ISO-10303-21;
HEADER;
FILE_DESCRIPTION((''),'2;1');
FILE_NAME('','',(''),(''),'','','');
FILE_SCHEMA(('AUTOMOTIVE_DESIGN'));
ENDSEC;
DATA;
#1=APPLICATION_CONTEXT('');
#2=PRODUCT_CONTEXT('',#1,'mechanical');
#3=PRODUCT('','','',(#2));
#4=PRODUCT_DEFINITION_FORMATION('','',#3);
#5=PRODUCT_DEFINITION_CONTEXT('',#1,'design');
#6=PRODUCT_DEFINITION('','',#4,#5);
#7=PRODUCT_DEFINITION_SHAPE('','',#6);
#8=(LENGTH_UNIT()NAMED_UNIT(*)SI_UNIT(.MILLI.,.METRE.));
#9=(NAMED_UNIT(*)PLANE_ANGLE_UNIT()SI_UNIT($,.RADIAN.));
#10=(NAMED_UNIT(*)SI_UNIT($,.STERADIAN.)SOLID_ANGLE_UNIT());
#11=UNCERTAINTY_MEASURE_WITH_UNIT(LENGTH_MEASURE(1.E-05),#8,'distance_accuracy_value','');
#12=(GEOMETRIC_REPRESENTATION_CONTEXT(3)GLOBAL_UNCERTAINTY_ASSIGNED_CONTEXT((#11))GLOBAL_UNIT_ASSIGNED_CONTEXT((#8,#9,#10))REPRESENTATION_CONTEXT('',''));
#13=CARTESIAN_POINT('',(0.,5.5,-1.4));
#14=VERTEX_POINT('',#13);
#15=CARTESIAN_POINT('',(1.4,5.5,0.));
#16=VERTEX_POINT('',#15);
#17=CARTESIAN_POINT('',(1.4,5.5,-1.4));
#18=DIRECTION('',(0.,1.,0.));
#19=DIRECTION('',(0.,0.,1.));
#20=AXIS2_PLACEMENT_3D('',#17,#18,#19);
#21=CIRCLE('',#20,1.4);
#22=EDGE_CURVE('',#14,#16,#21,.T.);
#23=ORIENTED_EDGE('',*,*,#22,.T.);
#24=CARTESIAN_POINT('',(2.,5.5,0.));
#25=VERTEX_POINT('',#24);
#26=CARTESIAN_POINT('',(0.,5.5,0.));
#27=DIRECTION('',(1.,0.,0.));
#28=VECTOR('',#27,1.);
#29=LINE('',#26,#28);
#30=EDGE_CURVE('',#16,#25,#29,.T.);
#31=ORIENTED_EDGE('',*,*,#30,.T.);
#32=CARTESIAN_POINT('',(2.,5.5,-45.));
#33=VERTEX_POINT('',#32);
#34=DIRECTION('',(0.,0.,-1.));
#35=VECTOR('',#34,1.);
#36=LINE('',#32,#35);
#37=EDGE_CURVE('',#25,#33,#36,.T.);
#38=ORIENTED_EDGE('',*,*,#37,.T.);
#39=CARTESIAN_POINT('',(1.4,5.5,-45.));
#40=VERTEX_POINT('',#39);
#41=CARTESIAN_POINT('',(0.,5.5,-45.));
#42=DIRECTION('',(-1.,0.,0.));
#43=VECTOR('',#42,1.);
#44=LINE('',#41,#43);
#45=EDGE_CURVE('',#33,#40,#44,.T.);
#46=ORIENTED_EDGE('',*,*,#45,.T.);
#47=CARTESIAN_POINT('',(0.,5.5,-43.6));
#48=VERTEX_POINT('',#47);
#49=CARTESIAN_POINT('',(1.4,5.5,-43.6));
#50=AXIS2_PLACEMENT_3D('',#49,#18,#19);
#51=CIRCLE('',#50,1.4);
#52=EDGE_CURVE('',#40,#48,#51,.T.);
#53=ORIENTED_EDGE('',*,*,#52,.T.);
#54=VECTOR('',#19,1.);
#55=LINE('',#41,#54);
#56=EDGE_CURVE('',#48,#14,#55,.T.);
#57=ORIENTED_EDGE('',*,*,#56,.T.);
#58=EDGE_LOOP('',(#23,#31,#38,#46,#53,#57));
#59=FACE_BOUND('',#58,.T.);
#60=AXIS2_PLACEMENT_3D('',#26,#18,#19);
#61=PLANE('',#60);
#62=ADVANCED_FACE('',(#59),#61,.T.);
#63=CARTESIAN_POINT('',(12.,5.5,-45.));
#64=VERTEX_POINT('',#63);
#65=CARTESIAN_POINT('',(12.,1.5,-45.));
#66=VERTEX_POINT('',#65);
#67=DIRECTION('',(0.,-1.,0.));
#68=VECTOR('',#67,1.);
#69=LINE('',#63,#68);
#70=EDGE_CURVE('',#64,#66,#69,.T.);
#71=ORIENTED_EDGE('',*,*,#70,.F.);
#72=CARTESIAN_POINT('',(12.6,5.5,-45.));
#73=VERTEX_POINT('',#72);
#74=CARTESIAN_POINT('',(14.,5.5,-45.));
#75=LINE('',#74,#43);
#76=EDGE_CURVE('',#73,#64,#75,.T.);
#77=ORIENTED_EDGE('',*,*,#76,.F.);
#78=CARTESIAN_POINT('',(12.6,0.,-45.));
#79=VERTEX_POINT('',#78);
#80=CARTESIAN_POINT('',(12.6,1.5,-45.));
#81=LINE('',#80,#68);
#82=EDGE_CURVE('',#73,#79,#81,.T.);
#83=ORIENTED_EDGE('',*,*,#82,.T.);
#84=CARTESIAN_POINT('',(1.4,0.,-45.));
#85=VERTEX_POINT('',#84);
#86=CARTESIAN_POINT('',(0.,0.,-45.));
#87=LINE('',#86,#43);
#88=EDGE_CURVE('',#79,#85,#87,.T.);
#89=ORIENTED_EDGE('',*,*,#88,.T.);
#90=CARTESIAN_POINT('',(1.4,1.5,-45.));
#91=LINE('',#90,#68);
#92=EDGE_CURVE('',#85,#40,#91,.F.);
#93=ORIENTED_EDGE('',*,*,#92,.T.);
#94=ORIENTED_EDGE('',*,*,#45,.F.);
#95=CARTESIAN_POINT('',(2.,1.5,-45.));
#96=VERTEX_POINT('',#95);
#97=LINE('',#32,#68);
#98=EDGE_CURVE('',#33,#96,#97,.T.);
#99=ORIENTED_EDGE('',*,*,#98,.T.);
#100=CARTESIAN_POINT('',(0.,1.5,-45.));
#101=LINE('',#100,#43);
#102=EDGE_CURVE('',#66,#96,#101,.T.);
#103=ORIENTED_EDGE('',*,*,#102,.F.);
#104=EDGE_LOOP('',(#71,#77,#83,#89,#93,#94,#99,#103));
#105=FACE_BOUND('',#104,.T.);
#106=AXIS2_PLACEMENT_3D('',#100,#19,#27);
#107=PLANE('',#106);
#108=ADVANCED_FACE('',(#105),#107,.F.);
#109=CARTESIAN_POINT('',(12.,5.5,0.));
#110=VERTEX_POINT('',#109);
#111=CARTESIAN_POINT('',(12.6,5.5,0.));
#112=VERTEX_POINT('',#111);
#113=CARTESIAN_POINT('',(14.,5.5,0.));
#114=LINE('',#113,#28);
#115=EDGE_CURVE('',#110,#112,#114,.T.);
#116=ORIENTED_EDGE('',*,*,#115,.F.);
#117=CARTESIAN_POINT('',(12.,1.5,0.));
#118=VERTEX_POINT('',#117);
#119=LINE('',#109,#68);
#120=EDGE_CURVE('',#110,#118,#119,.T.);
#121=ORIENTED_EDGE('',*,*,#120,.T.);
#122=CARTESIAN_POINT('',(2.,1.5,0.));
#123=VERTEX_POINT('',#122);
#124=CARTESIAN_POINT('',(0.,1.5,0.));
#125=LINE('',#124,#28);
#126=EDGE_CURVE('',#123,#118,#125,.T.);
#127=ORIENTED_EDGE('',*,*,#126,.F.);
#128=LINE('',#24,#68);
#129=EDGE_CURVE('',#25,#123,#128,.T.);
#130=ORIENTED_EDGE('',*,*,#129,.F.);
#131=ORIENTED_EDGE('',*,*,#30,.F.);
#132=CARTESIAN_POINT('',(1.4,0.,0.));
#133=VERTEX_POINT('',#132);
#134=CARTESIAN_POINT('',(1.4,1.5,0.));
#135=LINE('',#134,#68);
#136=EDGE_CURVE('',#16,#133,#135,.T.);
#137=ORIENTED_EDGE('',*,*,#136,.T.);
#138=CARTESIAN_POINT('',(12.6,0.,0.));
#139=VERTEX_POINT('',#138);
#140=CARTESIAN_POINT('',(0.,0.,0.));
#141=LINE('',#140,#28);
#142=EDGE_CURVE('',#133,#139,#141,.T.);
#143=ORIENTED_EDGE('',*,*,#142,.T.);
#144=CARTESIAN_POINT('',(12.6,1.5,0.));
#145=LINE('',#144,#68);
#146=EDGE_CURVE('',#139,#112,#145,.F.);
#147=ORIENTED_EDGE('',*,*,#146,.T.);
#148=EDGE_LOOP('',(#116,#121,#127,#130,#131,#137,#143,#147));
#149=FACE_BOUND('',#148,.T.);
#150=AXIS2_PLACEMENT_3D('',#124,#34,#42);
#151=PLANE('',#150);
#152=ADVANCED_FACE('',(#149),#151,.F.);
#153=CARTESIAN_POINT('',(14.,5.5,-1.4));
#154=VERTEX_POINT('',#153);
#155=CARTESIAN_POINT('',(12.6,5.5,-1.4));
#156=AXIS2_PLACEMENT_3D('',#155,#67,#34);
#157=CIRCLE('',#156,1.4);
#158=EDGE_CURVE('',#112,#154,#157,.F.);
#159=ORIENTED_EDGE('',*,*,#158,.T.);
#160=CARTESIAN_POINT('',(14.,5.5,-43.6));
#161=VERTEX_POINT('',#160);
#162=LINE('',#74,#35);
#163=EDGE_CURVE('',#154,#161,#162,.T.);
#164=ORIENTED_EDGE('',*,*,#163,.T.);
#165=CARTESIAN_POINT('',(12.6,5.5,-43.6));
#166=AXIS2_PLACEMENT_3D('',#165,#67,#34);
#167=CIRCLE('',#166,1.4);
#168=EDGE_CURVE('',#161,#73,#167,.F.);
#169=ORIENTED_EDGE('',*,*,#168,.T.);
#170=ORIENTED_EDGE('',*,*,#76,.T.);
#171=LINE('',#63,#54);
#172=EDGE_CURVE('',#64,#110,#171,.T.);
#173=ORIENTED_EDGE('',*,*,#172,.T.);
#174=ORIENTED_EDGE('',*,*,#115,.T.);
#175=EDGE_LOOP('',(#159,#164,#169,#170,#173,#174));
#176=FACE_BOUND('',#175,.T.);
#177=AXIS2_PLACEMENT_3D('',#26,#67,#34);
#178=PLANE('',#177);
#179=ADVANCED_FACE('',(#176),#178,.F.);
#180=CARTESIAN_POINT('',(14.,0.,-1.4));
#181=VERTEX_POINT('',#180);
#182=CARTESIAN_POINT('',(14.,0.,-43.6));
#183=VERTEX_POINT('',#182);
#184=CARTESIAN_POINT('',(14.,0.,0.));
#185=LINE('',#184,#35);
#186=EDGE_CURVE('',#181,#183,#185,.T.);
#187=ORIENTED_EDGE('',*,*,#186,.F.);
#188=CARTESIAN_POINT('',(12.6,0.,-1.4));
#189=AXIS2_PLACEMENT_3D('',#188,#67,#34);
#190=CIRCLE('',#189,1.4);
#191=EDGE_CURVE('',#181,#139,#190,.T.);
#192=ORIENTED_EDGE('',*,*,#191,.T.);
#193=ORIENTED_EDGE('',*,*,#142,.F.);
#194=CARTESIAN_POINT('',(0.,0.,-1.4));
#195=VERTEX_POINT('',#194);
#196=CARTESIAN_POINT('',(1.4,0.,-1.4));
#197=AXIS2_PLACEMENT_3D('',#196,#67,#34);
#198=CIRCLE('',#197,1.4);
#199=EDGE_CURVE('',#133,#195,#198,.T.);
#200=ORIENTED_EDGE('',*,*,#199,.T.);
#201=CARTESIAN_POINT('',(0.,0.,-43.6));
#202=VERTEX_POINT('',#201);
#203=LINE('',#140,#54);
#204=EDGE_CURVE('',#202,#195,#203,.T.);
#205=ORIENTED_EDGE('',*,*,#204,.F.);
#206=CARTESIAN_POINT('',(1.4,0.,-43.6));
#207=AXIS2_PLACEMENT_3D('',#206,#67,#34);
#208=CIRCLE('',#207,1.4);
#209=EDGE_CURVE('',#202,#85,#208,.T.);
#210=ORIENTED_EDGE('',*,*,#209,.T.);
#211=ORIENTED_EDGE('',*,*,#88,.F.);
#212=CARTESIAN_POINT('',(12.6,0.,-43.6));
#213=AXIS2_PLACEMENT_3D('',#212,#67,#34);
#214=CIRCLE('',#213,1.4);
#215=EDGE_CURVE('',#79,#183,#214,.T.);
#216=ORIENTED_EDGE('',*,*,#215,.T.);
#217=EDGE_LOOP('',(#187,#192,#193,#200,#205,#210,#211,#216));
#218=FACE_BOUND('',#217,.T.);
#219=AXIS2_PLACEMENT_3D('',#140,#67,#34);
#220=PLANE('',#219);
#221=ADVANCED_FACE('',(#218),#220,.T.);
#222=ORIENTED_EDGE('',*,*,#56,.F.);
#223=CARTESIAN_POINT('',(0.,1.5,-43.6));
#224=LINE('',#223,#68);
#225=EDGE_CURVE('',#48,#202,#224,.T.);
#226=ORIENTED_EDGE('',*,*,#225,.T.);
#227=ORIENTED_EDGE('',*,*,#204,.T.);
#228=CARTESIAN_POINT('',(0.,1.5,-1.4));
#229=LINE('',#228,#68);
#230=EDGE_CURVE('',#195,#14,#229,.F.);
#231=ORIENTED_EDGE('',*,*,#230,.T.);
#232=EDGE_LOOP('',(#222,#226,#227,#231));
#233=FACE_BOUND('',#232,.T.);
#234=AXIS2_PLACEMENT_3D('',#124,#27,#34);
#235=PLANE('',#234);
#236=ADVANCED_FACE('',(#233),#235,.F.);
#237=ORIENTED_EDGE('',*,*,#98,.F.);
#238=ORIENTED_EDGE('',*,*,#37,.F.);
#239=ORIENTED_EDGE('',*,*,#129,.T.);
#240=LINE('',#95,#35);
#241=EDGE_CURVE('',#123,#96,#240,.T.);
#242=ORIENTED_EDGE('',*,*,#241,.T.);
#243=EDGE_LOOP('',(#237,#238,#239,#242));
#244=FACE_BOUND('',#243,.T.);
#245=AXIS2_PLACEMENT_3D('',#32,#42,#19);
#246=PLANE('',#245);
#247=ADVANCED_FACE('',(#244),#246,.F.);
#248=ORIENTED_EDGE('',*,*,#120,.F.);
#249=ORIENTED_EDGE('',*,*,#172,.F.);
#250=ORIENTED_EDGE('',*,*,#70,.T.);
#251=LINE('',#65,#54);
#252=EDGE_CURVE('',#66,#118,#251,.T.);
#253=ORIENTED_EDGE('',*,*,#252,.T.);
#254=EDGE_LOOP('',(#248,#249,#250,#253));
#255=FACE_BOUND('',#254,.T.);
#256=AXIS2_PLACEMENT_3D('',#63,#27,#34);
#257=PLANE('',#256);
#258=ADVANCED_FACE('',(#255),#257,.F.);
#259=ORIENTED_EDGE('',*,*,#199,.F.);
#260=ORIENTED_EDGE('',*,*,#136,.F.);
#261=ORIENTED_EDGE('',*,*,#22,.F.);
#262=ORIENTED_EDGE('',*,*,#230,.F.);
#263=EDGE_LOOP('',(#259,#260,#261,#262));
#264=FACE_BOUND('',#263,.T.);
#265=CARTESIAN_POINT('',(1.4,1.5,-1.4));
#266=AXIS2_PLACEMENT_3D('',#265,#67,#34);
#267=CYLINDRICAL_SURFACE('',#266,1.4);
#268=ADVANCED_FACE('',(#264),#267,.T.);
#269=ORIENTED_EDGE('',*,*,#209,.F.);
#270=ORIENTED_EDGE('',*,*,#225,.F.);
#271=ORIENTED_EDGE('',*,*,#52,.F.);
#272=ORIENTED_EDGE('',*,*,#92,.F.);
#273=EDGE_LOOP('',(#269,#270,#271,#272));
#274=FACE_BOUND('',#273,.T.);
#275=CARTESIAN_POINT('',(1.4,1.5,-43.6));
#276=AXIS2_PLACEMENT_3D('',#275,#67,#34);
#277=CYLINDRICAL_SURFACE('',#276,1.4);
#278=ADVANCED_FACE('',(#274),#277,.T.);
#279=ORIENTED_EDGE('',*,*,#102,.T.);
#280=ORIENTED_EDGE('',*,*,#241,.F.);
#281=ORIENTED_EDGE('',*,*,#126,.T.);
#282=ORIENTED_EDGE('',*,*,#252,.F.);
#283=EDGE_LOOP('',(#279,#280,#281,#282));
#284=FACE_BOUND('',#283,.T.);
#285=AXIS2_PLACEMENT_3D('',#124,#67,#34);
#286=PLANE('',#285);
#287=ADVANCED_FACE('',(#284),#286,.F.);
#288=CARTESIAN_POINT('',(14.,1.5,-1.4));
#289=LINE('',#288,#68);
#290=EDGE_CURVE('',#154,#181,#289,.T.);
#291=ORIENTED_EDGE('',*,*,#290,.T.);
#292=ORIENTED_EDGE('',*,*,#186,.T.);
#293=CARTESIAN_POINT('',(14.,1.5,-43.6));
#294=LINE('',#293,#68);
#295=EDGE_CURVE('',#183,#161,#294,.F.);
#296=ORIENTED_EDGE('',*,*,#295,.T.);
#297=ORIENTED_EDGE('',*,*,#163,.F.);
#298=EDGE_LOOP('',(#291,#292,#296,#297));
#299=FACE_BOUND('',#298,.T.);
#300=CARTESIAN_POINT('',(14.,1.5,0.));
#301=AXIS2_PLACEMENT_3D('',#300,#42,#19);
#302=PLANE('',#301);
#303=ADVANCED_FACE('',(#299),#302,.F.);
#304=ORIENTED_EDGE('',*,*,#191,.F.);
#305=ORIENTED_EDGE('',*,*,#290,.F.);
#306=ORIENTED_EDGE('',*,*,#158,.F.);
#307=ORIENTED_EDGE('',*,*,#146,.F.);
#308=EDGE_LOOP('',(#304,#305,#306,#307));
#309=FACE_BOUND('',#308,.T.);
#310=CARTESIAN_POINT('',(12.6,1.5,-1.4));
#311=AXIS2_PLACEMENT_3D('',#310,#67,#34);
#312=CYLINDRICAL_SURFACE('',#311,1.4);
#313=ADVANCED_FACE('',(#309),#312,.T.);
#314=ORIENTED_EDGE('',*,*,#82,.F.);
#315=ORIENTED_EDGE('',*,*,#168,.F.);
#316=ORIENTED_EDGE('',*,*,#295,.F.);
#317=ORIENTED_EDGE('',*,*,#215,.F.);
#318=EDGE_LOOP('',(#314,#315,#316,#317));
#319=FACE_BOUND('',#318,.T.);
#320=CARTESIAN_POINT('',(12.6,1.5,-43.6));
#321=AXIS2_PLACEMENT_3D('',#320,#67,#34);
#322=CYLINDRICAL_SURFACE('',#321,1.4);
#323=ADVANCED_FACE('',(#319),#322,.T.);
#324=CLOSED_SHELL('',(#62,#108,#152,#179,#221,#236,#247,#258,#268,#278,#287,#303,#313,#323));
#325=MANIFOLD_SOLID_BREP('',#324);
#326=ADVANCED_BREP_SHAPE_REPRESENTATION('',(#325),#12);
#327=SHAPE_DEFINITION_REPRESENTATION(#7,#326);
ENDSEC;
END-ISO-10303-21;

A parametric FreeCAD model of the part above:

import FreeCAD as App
import Part
import Sketcher
from FreeCAD import Vector


def edges_at(feature, points):
    """Names of the edges that pass closest to the given points."""
    edges = feature.Shape.Edges
    near = lambda p: min(range(len(edges)), key=lambda i: edges[i].distToShape(Part.Vertex(*p))[0])
    return sorted({f"Edge{near(p) + 1}" for p in points})


def add_polygon(sketch, points):
    """Adds a closed chain of lines whose ends are joined by coincident constraints."""
    first, n = sketch.GeometryCount, len(points)
    for a, b in zip(points, points[1:] + points[:1]):
        sketch.addGeometry(Part.LineSegment(App.Vector(*a, 0), App.Vector(*b, 0)), False)
    for i in range(n):
        sketch.addConstraint(Sketcher.Constraint("Coincident", first + i, 2, first + (i + 1) % n, 1))

doc = App.newDocument("Part")
body = doc.addObject("PartDesign::Body", "Body")

# Sketch on XZ plane
sketch1 = doc.addObject("Sketcher::SketchObject", "Sketch")
body.addObject(sketch1)
sketch1.AttachmentSupport = (doc.XZ_Plane, [""])
sketch1.MapMode = "FlatFace"
add_polygon(sketch1, [(0, -45), (0, 0), (14, 0), (14, -45)])  # lines 0-3
sketch1.addConstraint([
    Sketcher.Constraint("Vertical", 0),
    Sketcher.Constraint("Horizontal", 1),
    Sketcher.Constraint("Vertical", 2),
    Sketcher.Constraint("Horizontal", 3),
    Sketcher.Constraint("Coincident", 0, 2, -1, 1),
    Sketcher.Constraint("DistanceX", 1, 1, 1, 2, 14.0),
    Sketcher.Constraint("DistanceY", 0, 1, 0, 2, 45.0),
])
pad1 = doc.addObject("PartDesign::Pad", "Pad")
body.addObject(pad1)
pad1.Profile = sketch1
pad1.Length = 1.5
pad1.Reversed = True

# Sketch on XZ plane
sketch2 = doc.addObject("Sketcher::SketchObject", "Sketch001")
body.addObject(sketch2)
sketch2.AttachmentSupport = (doc.XZ_Plane, [""])
sketch2.MapMode = "FlatFace"
sketch2.AttachmentOffset = App.Placement(Vector(0, 0, -1.5), App.Rotation())
add_polygon(sketch2, [(0, -45), (0, 0), (2, 0), (2, -45)])  # lines 0-3
add_polygon(sketch2, [(12, -45), (12, 0), (14, 0), (14, -45)])  # lines 4-7
sketch2.addConstraint([
    Sketcher.Constraint("Vertical", 0),
    Sketcher.Constraint("Horizontal", 1),
    Sketcher.Constraint("Vertical", 2),
    Sketcher.Constraint("Horizontal", 3),
    Sketcher.Constraint("Vertical", 4),
    Sketcher.Constraint("Horizontal", 5),
    Sketcher.Constraint("Vertical", 6),
    Sketcher.Constraint("Horizontal", 7),
    Sketcher.Constraint("Coincident", 0, 2, -1, 1),
    Sketcher.Constraint("PointOnObject", 4, 2, -1),
    Sketcher.Constraint("Horizontal", 3, 2, 6, 2),
    Sketcher.Constraint("Equal", 3, 5),
    Sketcher.Constraint("DistanceX", 1, 1, 1, 2, 2.0),
    Sketcher.Constraint("DistanceY", 0, 1, 0, 2, 45.0),
    Sketcher.Constraint("DistanceX", -1, 1, 4, 2, 12.0),
])
pad2 = doc.addObject("PartDesign::Pad", "Pad001")
body.addObject(pad2)
pad2.Profile = sketch2
pad2.Length = 4
pad2.Reversed = True
doc.recompute()

fillet = doc.addObject("PartDesign::Fillet", "Fillet")
body.addObject(fillet)
fillet.Base = (pad2, edges_at(pad2, [
    (0, 2.75, -45),
    (14, 2.75, -45),
    (14, 2.75, 0),
    (0, 2.75, 0),
]))
fillet.Radius = 1.4

doc.recompute()
